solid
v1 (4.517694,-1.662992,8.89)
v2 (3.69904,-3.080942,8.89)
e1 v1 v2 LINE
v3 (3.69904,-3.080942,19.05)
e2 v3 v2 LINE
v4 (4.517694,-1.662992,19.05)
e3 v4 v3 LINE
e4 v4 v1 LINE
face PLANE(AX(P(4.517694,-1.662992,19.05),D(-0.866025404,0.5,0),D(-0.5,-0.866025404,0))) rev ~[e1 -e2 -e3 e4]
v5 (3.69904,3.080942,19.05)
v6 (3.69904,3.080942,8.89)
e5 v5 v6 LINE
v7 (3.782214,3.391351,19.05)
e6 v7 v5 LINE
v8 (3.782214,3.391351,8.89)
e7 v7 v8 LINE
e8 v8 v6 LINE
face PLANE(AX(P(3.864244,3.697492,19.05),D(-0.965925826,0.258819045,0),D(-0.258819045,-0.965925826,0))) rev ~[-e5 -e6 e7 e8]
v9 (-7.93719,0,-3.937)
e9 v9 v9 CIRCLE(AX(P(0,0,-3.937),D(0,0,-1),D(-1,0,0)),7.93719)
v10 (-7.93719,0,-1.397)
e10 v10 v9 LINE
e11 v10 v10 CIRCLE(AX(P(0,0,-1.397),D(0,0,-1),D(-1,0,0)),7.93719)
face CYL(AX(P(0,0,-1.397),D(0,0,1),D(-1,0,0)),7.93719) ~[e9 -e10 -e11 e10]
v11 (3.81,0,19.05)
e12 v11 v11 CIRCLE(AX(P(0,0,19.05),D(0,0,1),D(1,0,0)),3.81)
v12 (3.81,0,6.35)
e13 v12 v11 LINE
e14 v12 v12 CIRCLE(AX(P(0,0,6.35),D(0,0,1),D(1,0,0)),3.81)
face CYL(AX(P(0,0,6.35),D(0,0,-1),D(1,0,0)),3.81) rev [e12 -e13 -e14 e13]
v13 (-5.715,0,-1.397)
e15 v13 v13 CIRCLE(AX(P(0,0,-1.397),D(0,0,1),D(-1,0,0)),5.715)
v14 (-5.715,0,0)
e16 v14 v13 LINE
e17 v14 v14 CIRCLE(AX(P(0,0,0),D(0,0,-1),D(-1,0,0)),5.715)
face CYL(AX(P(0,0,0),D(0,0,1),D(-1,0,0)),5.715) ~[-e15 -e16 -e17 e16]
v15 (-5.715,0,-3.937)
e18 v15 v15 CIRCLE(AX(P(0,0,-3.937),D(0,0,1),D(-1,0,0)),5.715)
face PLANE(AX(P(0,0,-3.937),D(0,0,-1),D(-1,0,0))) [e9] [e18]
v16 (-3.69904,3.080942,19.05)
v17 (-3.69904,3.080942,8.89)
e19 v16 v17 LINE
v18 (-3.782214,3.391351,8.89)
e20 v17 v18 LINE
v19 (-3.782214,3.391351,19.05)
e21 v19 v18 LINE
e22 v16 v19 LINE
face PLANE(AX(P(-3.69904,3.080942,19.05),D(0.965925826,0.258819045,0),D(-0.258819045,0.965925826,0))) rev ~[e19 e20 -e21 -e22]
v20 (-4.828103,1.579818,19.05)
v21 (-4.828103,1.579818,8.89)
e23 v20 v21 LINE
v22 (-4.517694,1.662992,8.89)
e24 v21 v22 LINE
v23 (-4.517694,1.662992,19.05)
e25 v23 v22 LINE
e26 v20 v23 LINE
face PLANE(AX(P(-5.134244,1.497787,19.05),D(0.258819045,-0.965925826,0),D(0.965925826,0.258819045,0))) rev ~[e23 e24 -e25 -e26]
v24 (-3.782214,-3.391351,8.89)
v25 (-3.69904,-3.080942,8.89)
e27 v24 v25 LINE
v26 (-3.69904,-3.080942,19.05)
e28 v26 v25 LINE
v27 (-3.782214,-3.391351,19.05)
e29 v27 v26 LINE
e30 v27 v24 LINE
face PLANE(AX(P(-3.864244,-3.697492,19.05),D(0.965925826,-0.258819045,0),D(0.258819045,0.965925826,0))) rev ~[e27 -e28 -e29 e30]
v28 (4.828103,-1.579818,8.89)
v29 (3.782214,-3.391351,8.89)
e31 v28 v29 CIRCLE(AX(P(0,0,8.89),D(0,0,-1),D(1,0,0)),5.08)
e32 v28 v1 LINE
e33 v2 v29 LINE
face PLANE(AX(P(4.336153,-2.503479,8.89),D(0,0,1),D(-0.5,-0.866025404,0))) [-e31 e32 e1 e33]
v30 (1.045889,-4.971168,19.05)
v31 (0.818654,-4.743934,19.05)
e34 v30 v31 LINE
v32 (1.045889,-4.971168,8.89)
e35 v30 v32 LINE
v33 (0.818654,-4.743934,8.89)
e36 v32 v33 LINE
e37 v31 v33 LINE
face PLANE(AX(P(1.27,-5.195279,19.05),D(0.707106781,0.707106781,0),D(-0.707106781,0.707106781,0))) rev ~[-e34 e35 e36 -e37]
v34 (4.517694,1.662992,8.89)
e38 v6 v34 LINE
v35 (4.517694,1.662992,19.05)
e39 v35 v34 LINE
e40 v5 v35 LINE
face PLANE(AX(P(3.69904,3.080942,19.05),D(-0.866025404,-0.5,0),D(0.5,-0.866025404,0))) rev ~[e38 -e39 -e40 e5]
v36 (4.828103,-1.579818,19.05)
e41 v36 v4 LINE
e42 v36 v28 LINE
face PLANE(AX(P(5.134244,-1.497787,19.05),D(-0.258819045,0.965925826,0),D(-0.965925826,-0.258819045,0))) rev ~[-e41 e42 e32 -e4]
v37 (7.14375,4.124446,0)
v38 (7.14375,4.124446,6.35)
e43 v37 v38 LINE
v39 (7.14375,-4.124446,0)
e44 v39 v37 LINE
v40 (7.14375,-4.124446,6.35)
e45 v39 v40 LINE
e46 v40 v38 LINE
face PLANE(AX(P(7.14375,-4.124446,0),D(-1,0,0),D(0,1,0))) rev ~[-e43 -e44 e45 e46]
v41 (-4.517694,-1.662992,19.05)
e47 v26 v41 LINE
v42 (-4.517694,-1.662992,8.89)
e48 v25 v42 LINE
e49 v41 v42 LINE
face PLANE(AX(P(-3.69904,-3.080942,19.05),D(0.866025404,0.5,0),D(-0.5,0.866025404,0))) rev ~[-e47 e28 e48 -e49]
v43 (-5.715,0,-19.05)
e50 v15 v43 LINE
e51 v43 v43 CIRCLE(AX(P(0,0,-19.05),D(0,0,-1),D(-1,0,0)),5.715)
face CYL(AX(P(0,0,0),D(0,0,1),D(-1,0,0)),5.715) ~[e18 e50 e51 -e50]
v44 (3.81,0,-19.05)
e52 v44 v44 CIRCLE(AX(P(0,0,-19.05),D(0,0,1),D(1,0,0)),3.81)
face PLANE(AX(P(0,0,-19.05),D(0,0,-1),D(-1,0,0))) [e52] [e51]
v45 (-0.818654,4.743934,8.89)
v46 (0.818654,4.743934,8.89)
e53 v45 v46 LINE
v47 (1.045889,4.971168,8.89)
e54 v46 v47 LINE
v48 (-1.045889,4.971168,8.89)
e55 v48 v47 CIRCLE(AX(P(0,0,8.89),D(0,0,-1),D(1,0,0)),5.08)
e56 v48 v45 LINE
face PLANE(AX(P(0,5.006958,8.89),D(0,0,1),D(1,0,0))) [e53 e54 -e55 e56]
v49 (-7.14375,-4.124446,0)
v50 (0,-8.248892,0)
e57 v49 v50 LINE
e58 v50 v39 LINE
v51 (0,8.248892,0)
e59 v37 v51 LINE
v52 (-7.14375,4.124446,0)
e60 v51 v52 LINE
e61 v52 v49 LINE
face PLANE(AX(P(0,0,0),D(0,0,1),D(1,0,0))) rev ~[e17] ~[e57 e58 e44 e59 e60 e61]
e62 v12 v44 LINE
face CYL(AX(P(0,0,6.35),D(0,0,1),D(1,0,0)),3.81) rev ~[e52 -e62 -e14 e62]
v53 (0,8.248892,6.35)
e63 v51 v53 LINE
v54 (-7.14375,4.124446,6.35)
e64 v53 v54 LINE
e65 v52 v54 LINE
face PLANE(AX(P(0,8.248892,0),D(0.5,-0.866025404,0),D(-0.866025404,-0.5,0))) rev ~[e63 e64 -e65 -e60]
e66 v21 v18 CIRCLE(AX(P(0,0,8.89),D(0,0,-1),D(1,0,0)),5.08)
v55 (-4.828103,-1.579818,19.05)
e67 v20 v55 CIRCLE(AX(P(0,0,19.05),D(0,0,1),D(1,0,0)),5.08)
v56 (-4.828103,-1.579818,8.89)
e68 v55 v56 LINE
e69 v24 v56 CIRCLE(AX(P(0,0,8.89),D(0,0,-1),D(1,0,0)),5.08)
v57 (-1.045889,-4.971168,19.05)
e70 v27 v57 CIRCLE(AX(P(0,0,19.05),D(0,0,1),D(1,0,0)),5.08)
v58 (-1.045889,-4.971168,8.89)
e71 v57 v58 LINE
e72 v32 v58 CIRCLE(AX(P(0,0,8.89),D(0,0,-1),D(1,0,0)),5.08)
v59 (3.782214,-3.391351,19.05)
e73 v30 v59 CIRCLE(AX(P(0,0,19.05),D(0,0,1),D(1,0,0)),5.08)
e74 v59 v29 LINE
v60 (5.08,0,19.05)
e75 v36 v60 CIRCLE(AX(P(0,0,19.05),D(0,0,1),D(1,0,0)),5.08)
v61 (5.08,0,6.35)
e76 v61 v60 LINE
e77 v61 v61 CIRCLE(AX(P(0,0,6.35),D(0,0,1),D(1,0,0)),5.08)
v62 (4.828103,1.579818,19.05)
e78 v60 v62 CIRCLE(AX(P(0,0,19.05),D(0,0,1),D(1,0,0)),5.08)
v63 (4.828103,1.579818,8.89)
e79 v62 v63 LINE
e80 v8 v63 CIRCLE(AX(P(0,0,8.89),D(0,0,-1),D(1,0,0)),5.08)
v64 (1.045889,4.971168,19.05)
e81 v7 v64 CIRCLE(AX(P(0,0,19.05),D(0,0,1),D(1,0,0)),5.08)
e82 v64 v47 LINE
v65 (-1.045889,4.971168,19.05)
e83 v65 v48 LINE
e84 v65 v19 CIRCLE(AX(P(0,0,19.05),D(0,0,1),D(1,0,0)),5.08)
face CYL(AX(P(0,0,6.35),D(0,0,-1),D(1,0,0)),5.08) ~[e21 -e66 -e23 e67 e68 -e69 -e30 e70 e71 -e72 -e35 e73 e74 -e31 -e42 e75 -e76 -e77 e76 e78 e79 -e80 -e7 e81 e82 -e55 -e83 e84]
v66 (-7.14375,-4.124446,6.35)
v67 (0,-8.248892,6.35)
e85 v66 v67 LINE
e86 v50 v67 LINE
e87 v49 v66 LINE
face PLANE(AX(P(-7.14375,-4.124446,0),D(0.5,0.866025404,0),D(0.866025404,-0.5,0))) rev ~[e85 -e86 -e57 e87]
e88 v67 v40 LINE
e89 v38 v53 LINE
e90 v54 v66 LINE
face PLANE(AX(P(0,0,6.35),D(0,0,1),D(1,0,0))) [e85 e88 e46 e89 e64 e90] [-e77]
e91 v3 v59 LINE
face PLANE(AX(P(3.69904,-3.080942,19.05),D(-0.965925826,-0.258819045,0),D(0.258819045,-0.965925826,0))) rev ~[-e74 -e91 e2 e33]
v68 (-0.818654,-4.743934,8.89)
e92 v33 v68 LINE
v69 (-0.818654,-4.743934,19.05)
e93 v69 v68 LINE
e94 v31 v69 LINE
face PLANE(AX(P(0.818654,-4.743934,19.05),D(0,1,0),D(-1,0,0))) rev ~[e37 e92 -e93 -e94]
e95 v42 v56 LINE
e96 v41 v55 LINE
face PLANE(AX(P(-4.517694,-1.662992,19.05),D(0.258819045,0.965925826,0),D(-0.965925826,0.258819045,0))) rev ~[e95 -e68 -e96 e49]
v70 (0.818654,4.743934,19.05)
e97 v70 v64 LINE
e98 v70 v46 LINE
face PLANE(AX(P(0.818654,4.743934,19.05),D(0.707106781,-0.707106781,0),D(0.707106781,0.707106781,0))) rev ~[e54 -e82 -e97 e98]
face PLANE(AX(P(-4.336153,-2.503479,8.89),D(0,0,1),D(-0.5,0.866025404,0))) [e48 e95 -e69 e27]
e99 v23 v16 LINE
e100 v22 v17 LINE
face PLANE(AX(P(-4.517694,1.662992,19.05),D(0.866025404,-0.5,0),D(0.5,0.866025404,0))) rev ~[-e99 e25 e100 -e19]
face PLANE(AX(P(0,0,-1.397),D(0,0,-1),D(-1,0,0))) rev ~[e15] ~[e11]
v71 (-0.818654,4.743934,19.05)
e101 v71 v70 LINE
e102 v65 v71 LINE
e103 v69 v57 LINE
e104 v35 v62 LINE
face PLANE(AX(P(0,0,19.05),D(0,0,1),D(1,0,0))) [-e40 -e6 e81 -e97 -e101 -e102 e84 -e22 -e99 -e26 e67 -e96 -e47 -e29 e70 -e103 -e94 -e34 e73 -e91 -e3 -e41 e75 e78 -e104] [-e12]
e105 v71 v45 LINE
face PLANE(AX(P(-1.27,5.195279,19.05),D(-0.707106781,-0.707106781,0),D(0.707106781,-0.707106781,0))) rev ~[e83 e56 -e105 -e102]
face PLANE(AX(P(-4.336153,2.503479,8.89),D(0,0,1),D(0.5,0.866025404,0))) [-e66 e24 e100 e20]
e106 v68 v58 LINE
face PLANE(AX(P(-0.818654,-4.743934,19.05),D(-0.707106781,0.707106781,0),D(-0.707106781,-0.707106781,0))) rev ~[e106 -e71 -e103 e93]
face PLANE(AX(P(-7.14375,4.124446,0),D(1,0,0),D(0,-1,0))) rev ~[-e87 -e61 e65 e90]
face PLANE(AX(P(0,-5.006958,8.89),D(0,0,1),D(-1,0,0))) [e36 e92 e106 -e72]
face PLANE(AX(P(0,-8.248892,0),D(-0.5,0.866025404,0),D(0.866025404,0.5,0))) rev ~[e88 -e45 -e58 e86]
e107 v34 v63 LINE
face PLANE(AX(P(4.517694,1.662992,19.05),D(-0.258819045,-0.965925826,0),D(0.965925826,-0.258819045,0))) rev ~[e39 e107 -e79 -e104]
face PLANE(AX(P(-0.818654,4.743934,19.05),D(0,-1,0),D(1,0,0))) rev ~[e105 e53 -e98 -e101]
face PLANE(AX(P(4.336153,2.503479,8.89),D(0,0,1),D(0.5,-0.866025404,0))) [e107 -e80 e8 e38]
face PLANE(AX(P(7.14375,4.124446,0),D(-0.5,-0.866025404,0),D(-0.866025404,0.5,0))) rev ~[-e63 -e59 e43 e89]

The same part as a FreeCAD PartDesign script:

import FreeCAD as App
import Part
import Sketcher

V = App.Vector
Q = App.Units.Quantity


def add_polygon(sketch, points):
    """Adds a closed chain of lines whose ends are joined by coincident constraints."""
    first, n = sketch.GeometryCount, len(points)
    for a, b in zip(points, points[1:] + points[:1]):
        sketch.addGeometry(Part.LineSegment(App.Vector(*a, 0), App.Vector(*b, 0)), False)
    for i in range(n):
        sketch.addConstraint(Sketcher.Constraint("Coincident", first + i, 2, first + (i + 1) % n, 1))

doc = App.newDocument("Part")
body = doc.addObject("PartDesign::Body", "Body")

# Sketch on XY plane
sketch1 = body.newObject("Sketcher::SketchObject", "Sketch")
sketch1.AttachmentSupport = (doc.getObject("XY_Plane"), [""])
sketch1.MapMode = "FlatFace"
add_polygon(sketch1, [(0, 8), (-7, 4), (-7, -4), (0, -8), (7, -4), (7, 4)])  # lines 0-5
sketch1.addConstraint([
    Sketcher.Constraint("Vertical", 1),
    Sketcher.Constraint("Vertical", 4),
    Sketcher.Constraint("Symmetric", 0, 2, 3, 2, -1, 1),
    Sketcher.Constraint("Symmetric", 2, 2, 5, 2, -1, 1),
    Sketcher.Constraint("PointOnObject", 2, 2, -2),
    Sketcher.Constraint("Parallel", 2, 5),
    Sketcher.Constraint("Horizontal", 1, 2, 3, 2),
    Sketcher.Constraint("Angle", 0, Q("-150 deg")),
    Sketcher.Constraint("DistanceX", 0, 2, -1, 1, Q("0.28125 in")),
    Sketcher.Constraint("DistanceY", 1, 2, 1, 1, Q("8.248892 mm")),
])
pad1 = body.newObject("PartDesign::Pad", "Pad")
pad1.Profile = sketch1
pad1.Length = Q("0.25 in")

# Sketch on XY plane
sketch2 = body.newObject("Sketcher::SketchObject", "Sketch001")
sketch2.AttachmentSupport = (doc.getObject("XY_Plane"), [""])
sketch2.MapMode = "FlatFace"
sketch2.AttachmentOffset = App.Placement(V(0, 0, 0.25 * 25.4), App.Rotation())
sketch2.addGeometry([
    Part.Circle(V(0, 0, 0), V(0, 0, 1), 5.1),
    Part.Circle(V(0, 0, 0), V(0, 0, 1), 3.8),
], False)
sketch2.addConstraint([
    Sketcher.Constraint("Coincident", 0, 3, -1, 1),
    Sketcher.Constraint("Coincident", 1, 3, -1, 1),
    Sketcher.Constraint("Diameter", 0, Q("0.4 in")),
    Sketcher.Constraint("Diameter", 1, Q("0.3 in")),
])
pad2 = body.newObject("PartDesign::Pad", "Pad001")
pad2.Profile = sketch2
pad2.Length = Q("0.5 in")

# Sketch on XY plane
sketch3 = body.newObject("Sketcher::SketchObject", "Sketch002")
sketch3.AttachmentSupport = (doc.getObject("XY_Plane"), [""])
sketch3.MapMode = "FlatFace"
sketch3.addGeometry(Part.Circle(V(0, 0, 0), V(0, 0, 1), 6), False)
sketch3.addConstraint([
    Sketcher.Constraint("Coincident", 0, 3, -1, 1),
    Sketcher.Constraint("Diameter", 0, Q("0.45 in")),
])
pad3 = body.newObject("PartDesign::Pad", "Pad002")
pad3.Profile = sketch3
pad3.Length = Q("0.75 in")
pad3.Reversed = True

# Sketch on XY plane
sketch4 = body.newObject("Sketcher::SketchObject", "Sketch003")
sketch4.AttachmentSupport = (doc.getObject("XY_Plane"), [""])
sketch4.MapMode = "FlatFace"
sketch4.AttachmentOffset = App.Placement(V(0, 0, -0.055 * 25.4), App.Rotation())
sketch4.addGeometry(Part.Circle(V(0, 0, 0), V(0, 0, 1), 8), False)
sketch4.addConstraint([
    Sketcher.Constraint("Coincident", 0, 3, -1, 1),
    Sketcher.Constraint("Diameter", 0, Q("15.874381 mm")),
])
pad4 = body.newObject("PartDesign::Pad", "Pad003")
pad4.Profile = sketch4
pad4.Length = Q("0.1 in")
pad4.Reversed = True

# Sketch on XY plane
sketch5 = body.newObject("Sketcher::SketchObject", "Sketch004")
sketch5.AttachmentSupport = (doc.getObject("XY_Plane"), [""])
sketch5.MapMode = "FlatFace"
sketch5.AttachmentOffset = App.Placement(V(0, 0, 0.25 * 25.4), App.Rotation())
sketch5.addGeometry(Part.Circle(V(0, 0, 0), V(0, 0, 1), 3.8), False)
sketch5.addConstraint([
    Sketcher.Constraint("Coincident", 0, 3, -1, 1),
    Sketcher.Constraint("Diameter", 0, Q("0.3 in")),
])
pocket1 = body.newObject("PartDesign::Pocket", "Pocket")
pocket1.Profile = sketch5
pocket1.Type = "ThroughAll"

# Sketch on XY plane
sketch6 = body.newObject("Sketcher::SketchObject", "Sketch005")
sketch6.AttachmentSupport = (doc.getObject("XY_Plane"), [""])
sketch6.MapMode = "FlatFace"
sketch6.AttachmentOffset = App.Placement(V(0, 0, 0.75 * 25.4), App.Rotation())
add_polygon(sketch6, [(-0.8, 4.7), (0.8, 4.7), (1.3, 5.2), (-1.3, 5.2)])  # lines 0-3
sketch6.addConstraint([
    Sketcher.Constraint("Horizontal", 0),
    Sketcher.Constraint("Horizontal", 2),
    Sketcher.Constraint("Perpendicular", 1, 3),
    Sketcher.Constraint("Equal", 1, 3),
    Sketcher.Constraint("DistanceX", 2, 2, 2, 1, Q("0.1 in")),
    Sketcher.Constraint("DistanceX", -1, 1, 1, 2, Q("0.05 in")),
    Sketcher.Constraint("Distance", 1, Q("0.638299 mm")),
    Sketcher.Constraint("DistanceY", -1, 1, 1, 2, Q("5.195279 mm")),
])
pocket2 = body.newObject("PartDesign::Pocket", "Pocket001")
pocket2.Profile = sketch6
pocket2.Length = Q("0.4 in")
doc.recompute()

polarpattern = body.newObject("PartDesign::PolarPattern", "PolarPattern")
polarpattern.Originals = [pocket2]
polarpattern.Axis = (doc.getObject("Z_Axis"), [""])
polarpattern.Angle = 360
polarpattern.Occurrences = 6
body.Tip = polarpattern

doc.recompute()
